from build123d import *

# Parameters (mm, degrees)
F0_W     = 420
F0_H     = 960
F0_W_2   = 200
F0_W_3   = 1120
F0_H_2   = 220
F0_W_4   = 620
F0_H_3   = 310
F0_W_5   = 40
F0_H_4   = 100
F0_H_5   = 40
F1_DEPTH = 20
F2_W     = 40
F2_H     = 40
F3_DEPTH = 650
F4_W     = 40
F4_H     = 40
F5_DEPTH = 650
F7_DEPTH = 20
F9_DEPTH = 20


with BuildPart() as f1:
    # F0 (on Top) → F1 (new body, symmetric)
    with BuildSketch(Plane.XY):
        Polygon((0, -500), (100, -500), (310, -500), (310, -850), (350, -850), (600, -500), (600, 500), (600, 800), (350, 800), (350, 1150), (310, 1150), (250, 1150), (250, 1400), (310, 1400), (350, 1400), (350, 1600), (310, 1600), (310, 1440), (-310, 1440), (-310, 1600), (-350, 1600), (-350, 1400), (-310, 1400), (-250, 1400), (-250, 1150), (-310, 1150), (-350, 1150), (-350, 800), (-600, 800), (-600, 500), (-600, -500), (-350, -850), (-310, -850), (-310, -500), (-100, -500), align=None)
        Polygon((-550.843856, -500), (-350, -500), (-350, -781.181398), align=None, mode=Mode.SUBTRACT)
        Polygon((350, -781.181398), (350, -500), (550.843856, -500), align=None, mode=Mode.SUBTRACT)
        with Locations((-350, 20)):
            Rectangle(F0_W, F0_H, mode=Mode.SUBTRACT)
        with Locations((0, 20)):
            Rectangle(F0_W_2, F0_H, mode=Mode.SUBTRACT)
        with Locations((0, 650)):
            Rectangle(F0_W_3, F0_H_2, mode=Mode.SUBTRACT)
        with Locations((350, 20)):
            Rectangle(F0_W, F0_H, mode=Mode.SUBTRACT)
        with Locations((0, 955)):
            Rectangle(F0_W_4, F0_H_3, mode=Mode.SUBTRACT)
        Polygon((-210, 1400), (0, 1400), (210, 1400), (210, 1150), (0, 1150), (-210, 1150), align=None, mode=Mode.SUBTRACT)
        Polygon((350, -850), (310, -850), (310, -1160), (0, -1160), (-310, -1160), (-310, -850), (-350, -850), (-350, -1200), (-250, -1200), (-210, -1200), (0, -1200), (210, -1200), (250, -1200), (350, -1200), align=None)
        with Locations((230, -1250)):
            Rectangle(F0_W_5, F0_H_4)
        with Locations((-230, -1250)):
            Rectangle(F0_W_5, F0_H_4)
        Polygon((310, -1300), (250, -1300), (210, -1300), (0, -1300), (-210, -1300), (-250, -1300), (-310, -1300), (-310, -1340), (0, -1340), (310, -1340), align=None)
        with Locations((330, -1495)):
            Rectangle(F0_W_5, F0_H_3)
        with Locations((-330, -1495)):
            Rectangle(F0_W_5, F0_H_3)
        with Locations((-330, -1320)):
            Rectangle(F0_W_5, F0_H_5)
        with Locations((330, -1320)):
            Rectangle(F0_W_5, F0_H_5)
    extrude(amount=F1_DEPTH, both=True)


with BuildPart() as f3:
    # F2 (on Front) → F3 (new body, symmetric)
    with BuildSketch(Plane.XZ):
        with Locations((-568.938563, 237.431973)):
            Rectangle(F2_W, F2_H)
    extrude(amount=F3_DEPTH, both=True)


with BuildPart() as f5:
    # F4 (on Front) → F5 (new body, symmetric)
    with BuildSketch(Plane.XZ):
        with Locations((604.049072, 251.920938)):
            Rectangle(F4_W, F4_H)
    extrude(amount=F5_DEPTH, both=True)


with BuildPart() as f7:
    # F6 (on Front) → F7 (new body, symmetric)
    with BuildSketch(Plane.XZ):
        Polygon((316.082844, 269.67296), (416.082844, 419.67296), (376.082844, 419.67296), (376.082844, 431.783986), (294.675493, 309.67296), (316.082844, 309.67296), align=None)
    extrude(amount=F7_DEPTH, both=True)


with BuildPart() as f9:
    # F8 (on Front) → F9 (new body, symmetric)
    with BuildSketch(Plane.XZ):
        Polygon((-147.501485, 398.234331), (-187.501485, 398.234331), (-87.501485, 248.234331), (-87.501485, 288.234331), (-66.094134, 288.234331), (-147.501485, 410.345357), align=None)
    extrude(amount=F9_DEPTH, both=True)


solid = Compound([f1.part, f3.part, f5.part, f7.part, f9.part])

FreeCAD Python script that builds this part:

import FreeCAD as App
import Part
import Sketcher
from FreeCAD import Vector


def add_polygon(sketch, points):
    """Adds a closed chain of lines whose ends are joined by coincident constraints."""
    first, n = sketch.GeometryCount, len(points)
    for a, b in zip(points, points[1:] + points[:1]):
        sketch.addGeometry(Part.LineSegment(App.Vector(*a, 0), App.Vector(*b, 0)), False)
    for i in range(n):
        sketch.addConstraint(Sketcher.Constraint("Coincident", first + i, 2, first + (i + 1) % n, 1))

doc = App.newDocument("Part")
body = doc.addObject("PartDesign::Body", "Body")

# Sketch on XY plane
sketch1 = body.newObject("Sketcher::SketchObject", "Sketch")
sketch1.AttachmentSupport = (doc.getObject("XY_Plane"), [""])
sketch1.MapMode = "FlatFace"
add_polygon(sketch1, [(350, -850), (600, -500), (600, 800), (350, 800), (350, 1150), (250, 1150), (250, 1400), (350, 1400), (350, 1600), (310, 1600), (310, 1440), (-310, 1440), (-310, 1600), (-350, 1600), (-350, 1400), (-250, 1400), (-250, 1150), (-350, 1150), (-350, 800), (-600, 800), (-600, -500), (-350, -850), (-350, -1200), (-250, -1200), (-250, -1300), (-350, -1300), (-350, -1650), (-310, -1650), (-310, -1340), (310, -1340), (310, -1650), (350, -1650), (350, -1300), (250, -1300), (250, -1200), (350, -1200)])  # lines 0-35
add_polygon(sketch1, [(310, -500), (310, -1160), (-310, -1160), (-310, -500)])  # lines 36-39
add_polygon(sketch1, [(-210, -1300), (-210, -1200), (210, -1200), (210, -1300)])  # lines 40-43
add_polygon(sketch1, [(-350, -781), (-551, -500), (-350, -500)])  # lines 44-46
add_polygon(sketch1, [(-140, -460), (-560, -460), (-560, 500), (-140, 500)])  # lines 47-50
add_polygon(sketch1, [(551, -500), (350, -781), (350, -500)])  # lines 51-53
add_polygon(sketch1, [(100, -460), (-100, -460), (-100, 500), (100, 500)])  # lines 54-57
add_polygon(sketch1, [(560, -460), (140, -460), (140, 500), (560, 500)])  # lines 58-61
add_polygon(sketch1, [(560, 540), (-560, 540), (-560, 760), (560, 760)])  # lines 62-65
add_polygon(sketch1, [(310, 800), (-310, 800), (-310, 1110), (310, 1110)])  # lines 66-69
add_polygon(sketch1, [(-210, 1150), (-210, 1400), (210, 1400), (210, 1150)])  # lines 70-73
sketch1.addConstraint([
    Sketcher.Constraint("Vertical", 1),
    Sketcher.Constraint("Horizontal", 2),
    Sketcher.Constraint("Vertical", 3),
    Sketcher.Constraint("Horizontal", 4),
    Sketcher.Constraint("Vertical", 5),
    Sketcher.Constraint("Horizontal", 6),
    Sketcher.Constraint("Vertical", 7),
    Sketcher.Constraint("Horizontal", 8),
    Sketcher.Constraint("Vertical", 9),
    Sketcher.Constraint("Horizontal", 10),
    Sketcher.Constraint("Vertical", 11),
    Sketcher.Constraint("Horizontal", 12),
    Sketcher.Constraint("Vertical", 13),
    Sketcher.Constraint("Horizontal", 14),
    Sketcher.Constraint("Vertical", 15),
    Sketcher.Constraint("Horizontal", 16),
    Sketcher.Constraint("Vertical", 17),
    Sketcher.Constraint("Horizontal", 18),
    Sketcher.Constraint("Vertical", 19),
    Sketcher.Constraint("Vertical", 21),
    Sketcher.Constraint("Horizontal", 22),
    Sketcher.Constraint("Vertical", 23),
    Sketcher.Constraint("Horizontal", 24),
    Sketcher.Constraint("Vertical", 25),
    Sketcher.Constraint("Horizontal", 26),
    Sketcher.Constraint("Vertical", 27),
    Sketcher.Constraint("Horizontal", 28),
    Sketcher.Constraint("Vertical", 29),
    Sketcher.Constraint("Horizontal", 30),
    Sketcher.Constraint("Vertical", 31),
    Sketcher.Constraint("Horizontal", 32),
    Sketcher.Constraint("Vertical", 33),
    Sketcher.Constraint("Horizontal", 34),
    Sketcher.Constraint("Vertical", 35),
    Sketcher.Constraint("Vertical", 36),
    Sketcher.Constraint("Horizontal", 37),
    Sketcher.Constraint("Vertical", 38),
    Sketcher.Constraint("Horizontal", 39),
    Sketcher.Constraint("Vertical", 40),
    Sketcher.Constraint("Horizontal", 41),
    Sketcher.Constraint("Vertical", 42),
    Sketcher.Constraint("Horizontal", 43),
    Sketcher.Constraint("Horizontal", 45),
    Sketcher.Constraint("Vertical", 46),
    Sketcher.Constraint("Horizontal", 47),
    Sketcher.Constraint("Vertical", 48),
    Sketcher.Constraint("Horizontal", 49),
    Sketcher.Constraint("Vertical", 50),
    Sketcher.Constraint("Vertical", 52),
    Sketcher.Constraint("Horizontal", 53),
    Sketcher.Constraint("Horizontal", 54),
    Sketcher.Constraint("Vertical", 55),
    Sketcher.Constraint("Horizontal", 56),
    Sketcher.Constraint("Vertical", 57),
    Sketcher.Constraint("Horizontal", 58),
    Sketcher.Constraint("Vertical", 59),
    Sketcher.Constraint("Horizontal", 60),
    Sketcher.Constraint("Vertical", 61),
    Sketcher.Constraint("Horizontal", 62),
    Sketcher.Constraint("Vertical", 63),
    Sketcher.Constraint("Horizontal", 64),
    Sketcher.Constraint("Vertical", 65),
    Sketcher.Constraint("Horizontal", 66),
    Sketcher.Constraint("Vertical", 67),
    Sketcher.Constraint("Horizontal", 68),
    Sketcher.Constraint("Vertical", 69),
    Sketcher.Constraint("Vertical", 70),
    Sketcher.Constraint("Horizontal", 71),
    Sketcher.Constraint("Vertical", 72),
    Sketcher.Constraint("Horizontal", 73),
    Sketcher.Constraint("Symmetric", 8, 2, 11, 2, -2),
    Sketcher.Constraint("Symmetric", 6, 2, 13, 2, -2),
    Sketcher.Constraint("Symmetric", 4, 2, 15, 2, -2),
    Sketcher.Constraint("Symmetric", 2, 2, 17, 2, -2),
    Sketcher.Constraint("Symmetric", 0, 2, 19, 2, -2),
    Sketcher.Constraint("Symmetric", 26, 2, 29, 2, -2),
    Sketcher.Constraint("Symmetric", 24, 2, 31, 2, -2),
    Sketcher.Constraint("Symmetric", 22, 2, 33, 2, -2),
    Sketcher.Constraint("Symmetric", 20, 2, 35, 2, -2),
    Sketcher.Constraint("Symmetric", 46, 2, 51, 2, -2),
    Sketcher.Constraint("Symmetric", 44, 2, 53, 2, -2),
    Sketcher.Constraint("Symmetric", 50, 2, 58, 2, -2),
    Sketcher.Constraint("Symmetric", 48, 2, 60, 2, -2),
    Sketcher.Constraint("Parallel", 20, 44),
    Sketcher.Constraint("Horizontal", 19, 2, 38, 2),
    Sketcher.Constraint("Horizontal", 34, 2, 40, 2),
    Sketcher.Constraint("Horizontal", 32, 2, 42, 2),
    Sketcher.Constraint("Horizontal", 39, 2, 44, 2),
    Sketcher.Constraint("Horizontal", 50, 2, 54, 2),
    Sketcher.Constraint("Horizontal", 49, 2, 55, 2),
    Sketcher.Constraint("Horizontal", 18, 2, 66, 2),
    Sketcher.Constraint("Horizontal", 14, 2, 70, 2),
    Sketcher.Constraint("Horizontal", 16, 2, 72, 2),
    Sketcher.Constraint("Vertical", 3, 2, 6, 2),
    Sketcher.Constraint("Vertical", 17, 2, 20, 2),
    Sketcher.Constraint("Vertical", 15, 2, 22, 2),
    Sketcher.Constraint("Vertical", 21, 2, 24, 2),
    Sketcher.Constraint("Vertical", 11, 2, 26, 2),
    Sketcher.Constraint("Vertical", 29, 2, 36, 2),
    Sketcher.Constraint("Vertical", 27, 2, 37, 2),
    Sketcher.Constraint("Vertical", 25, 2, 45, 2),
    Sketcher.Constraint("Vertical", 48, 2, 62, 2),
    Sketcher.Constraint("Vertical", 61, 2, 64, 2),
    Sketcher.Constraint("Vertical", 38, 2, 66, 2),
    Sketcher.Constraint("Vertical", 39, 2, 68, 2),
    Sketcher.Constraint("Vertical", 43, 2, 70, 2),
    Sketcher.Constraint("Vertical", 42, 2, 71, 2),
    Sketcher.Constraint("Equal", 43, 47),
    Sketcher.Constraint("Equal", 18, 5),
    Sketcher.Constraint("Equal", 56, 7),
    Sketcher.Constraint("Equal", 17, 21),
    Sketcher.Constraint("Equal", 34, 23),
    Sketcher.Constraint("Equal", 21, 25),
    Sketcher.Constraint("Equal", 29, 67),
    Sketcher.Constraint("DistanceX", 2, 2, 2, 1, 250.0),
    Sketcher.Constraint("DistanceX", 4, 2, 4, 1, 100.0),
    Sketcher.Constraint("DistanceX", 8, 2, 8, 1, 40.0),
    Sketcher.Constraint("DistanceX", 10, 2, 10, 1, 620.0),
    Sketcher.Constraint("DistanceX", 41, 1, 41, 2, 420.0),
    Sketcher.Constraint("DistanceX", 54, 2, 54, 1, 200.0),
    Sketcher.Constraint("DistanceX", 62, 2, 62, 1, 1120.0),
    Sketcher.Constraint("DistanceY", 1, 1, 1, 2, 1300.0),
    Sketcher.Constraint("DistanceY", 3, 1, 3, 2, 350.0),
    Sketcher.Constraint("DistanceY", 9, 2, 9, 1, 160.0),
    Sketcher.Constraint("DistanceY", 27, 1, 27, 2, 310.0),
    Sketcher.Constraint("DistanceY", 36, 2, 36, 1, 660.0),
    Sketcher.Constraint("DistanceY", 48, 1, 48, 2, 960.0),
    Sketcher.Constraint("DistanceY", 63, 1, 63, 2, 220.0),
    Sketcher.Constraint("DistanceY", 0, 2, -1, 1, 500.0),
    Sketcher.Constraint("DistanceY", 20, 2, -1, 1, 850.0),
    Sketcher.Constraint("DistanceX", 40, 2, -1, 1, 210.0),
    Sketcher.Constraint("DistanceY", 47, 2, -1, 1, 460.0),
    Sketcher.Constraint("DistanceX", 54, 2, -1, 1, 100.0),
    Sketcher.Constraint("DistanceY", -1, 1, 62, 2, 540.0),
    Sketcher.Constraint("DistanceX", 45, 1, 45, 2, 200.843856),
])
pad1 = body.newObject("PartDesign::Pad", "Pad")
pad1.Profile = sketch1
pad1.Length = 40
pad1.Midplane = True
body2 = doc.addObject("PartDesign::Body", "Body001")

# Sketch on XZ plane
sketch2 = body2.newObject("Sketcher::SketchObject", "Sketch001")
sketch2.AttachmentSupport = (doc.getObject("XZ_Plane001"), [""])
sketch2.MapMode = "FlatFace"
add_polygon(sketch2, [(-589, 257), (-589, 217), (-549, 217), (-549, 257)])  # lines 0-3
sketch2.addConstraint([
    Sketcher.Constraint("Vertical", 0),
    Sketcher.Constraint("Horizontal", 1),
    Sketcher.Constraint("Vertical", 2),
    Sketcher.Constraint("Horizontal", 3),
    Sketcher.Constraint("Equal", 3, 0),
    Sketcher.Constraint("DistanceX", 1, 1, 1, 2, 40.0),
    Sketcher.Constraint("DistanceX", 0, 2, -1, 1, 588.938563),
    Sketcher.Constraint("DistanceY", -1, 1, 0, 2, 217.431973),
])
pad2 = body2.newObject("PartDesign::Pad", "Pad001")
pad2.Profile = sketch2
pad2.Length = 1300
pad2.Midplane = True
body3 = doc.addObject("PartDesign::Body", "Body002")

# Sketch on XZ plane
sketch3 = body3.newObject("Sketcher::SketchObject", "Sketch002")
sketch3.AttachmentSupport = (doc.getObject("XZ_Plane002"), [""])
sketch3.MapMode = "FlatFace"
add_polygon(sketch3, [(584, 272), (584, 232), (624, 232), (624, 272)])  # lines 0-3
sketch3.addConstraint([
    Sketcher.Constraint("Vertical", 0),
    Sketcher.Constraint("Horizontal", 1),
    Sketcher.Constraint("Vertical", 2),
    Sketcher.Constraint("Horizontal", 3),
    Sketcher.Constraint("Equal", 3, 0),
    Sketcher.Constraint("DistanceX", 1, 1, 1, 2, 40.0),
    Sketcher.Constraint("DistanceX", -1, 1, 0, 2, 584.049072),
    Sketcher.Constraint("DistanceY", -1, 1, 0, 2, 231.920938),
])
pad3 = body3.newObject("PartDesign::Pad", "Pad002")
pad3.Profile = sketch3
pad3.Length = 1300
pad3.Midplane = True
body4 = doc.addObject("PartDesign::Body", "Body003")

# Sketch on XZ plane
sketch4 = body4.newObject("Sketcher::SketchObject", "Sketch003")
sketch4.AttachmentSupport = (doc.getObject("XZ_Plane003"), [""])
sketch4.MapMode = "FlatFace"
add_polygon(sketch4, [(316, 270), (416, 420), (376, 420), (376, 432), (295, 310), (316, 310)])  # lines 0-5
sketch4.addConstraint([
    Sketcher.Constraint("Horizontal", 1),
    Sketcher.Constraint("Vertical", 2),
    Sketcher.Constraint("Horizontal", 4),
    Sketcher.Constraint("Vertical", 5),
    Sketcher.Constraint("Parallel", 0, 3),
    Sketcher.Constraint("Equal", 1, 5),
    Sketcher.Constraint("DistanceX", 1, 2, 1, 1, 40.0),
    Sketcher.Constraint("DistanceY", 3, 2, 1, 2, 110.0),
    Sketcher.Constraint("DistanceX", 4, 2, 1, 2, 60.0),
    Sketcher.Constraint("DistanceX", 4, 1, 4, 2, 21.407351),
    Sketcher.Constraint("DistanceY", -1, 1, 0, 2, 419.67296),
    Sketcher.Constraint("DistanceX", -1, 1, 0, 2, 416.082844),
])
pad4 = body4.newObject("PartDesign::Pad", "Pad003")
pad4.Profile = sketch4
pad4.Length = 40
pad4.Midplane = True
body5 = doc.addObject("PartDesign::Body", "Body004")

# Sketch on XZ plane
sketch5 = body5.newObject("Sketcher::SketchObject", "Sketch004")
sketch5.AttachmentSupport = (doc.getObject("XZ_Plane004"), [""])
sketch5.MapMode = "FlatFace"
add_polygon(sketch5, [(-148, 398), (-188, 398), (-88, 248), (-88, 288), (-66, 288), (-148, 410)])  # lines 0-5
sketch5.addConstraint([
    Sketcher.Constraint("Horizontal", 0),
    Sketcher.Constraint("Vertical", 2),
    Sketcher.Constraint("Horizontal", 3),
    Sketcher.Constraint("Vertical", 5),
    Sketcher.Constraint("Parallel", 1, 4),
    Sketcher.Constraint("Equal", 0, 2),
    Sketcher.Constraint("DistanceX", 0, 2, 0, 1, 40.0),
    Sketcher.Constraint("DistanceX", 0, 2, 1, 2, 100.0),
    Sketcher.Constraint("DistanceY", 1, 2, 0, 2, 150.0),
    Sketcher.Constraint("DistanceX", 3, 1, 3, 2, 21.407351),
    Sketcher.Constraint("DistanceY", -1, 1, 0, 2, 398.234331),
    Sketcher.Constraint("DistanceX", 0, 2, -1, 1, 187.501485),
])
pad5 = body5.newObject("PartDesign::Pad", "Pad004")
pad5.Profile = sketch5
pad5.Length = 40
pad5.Midplane = True

doc.recompute()
